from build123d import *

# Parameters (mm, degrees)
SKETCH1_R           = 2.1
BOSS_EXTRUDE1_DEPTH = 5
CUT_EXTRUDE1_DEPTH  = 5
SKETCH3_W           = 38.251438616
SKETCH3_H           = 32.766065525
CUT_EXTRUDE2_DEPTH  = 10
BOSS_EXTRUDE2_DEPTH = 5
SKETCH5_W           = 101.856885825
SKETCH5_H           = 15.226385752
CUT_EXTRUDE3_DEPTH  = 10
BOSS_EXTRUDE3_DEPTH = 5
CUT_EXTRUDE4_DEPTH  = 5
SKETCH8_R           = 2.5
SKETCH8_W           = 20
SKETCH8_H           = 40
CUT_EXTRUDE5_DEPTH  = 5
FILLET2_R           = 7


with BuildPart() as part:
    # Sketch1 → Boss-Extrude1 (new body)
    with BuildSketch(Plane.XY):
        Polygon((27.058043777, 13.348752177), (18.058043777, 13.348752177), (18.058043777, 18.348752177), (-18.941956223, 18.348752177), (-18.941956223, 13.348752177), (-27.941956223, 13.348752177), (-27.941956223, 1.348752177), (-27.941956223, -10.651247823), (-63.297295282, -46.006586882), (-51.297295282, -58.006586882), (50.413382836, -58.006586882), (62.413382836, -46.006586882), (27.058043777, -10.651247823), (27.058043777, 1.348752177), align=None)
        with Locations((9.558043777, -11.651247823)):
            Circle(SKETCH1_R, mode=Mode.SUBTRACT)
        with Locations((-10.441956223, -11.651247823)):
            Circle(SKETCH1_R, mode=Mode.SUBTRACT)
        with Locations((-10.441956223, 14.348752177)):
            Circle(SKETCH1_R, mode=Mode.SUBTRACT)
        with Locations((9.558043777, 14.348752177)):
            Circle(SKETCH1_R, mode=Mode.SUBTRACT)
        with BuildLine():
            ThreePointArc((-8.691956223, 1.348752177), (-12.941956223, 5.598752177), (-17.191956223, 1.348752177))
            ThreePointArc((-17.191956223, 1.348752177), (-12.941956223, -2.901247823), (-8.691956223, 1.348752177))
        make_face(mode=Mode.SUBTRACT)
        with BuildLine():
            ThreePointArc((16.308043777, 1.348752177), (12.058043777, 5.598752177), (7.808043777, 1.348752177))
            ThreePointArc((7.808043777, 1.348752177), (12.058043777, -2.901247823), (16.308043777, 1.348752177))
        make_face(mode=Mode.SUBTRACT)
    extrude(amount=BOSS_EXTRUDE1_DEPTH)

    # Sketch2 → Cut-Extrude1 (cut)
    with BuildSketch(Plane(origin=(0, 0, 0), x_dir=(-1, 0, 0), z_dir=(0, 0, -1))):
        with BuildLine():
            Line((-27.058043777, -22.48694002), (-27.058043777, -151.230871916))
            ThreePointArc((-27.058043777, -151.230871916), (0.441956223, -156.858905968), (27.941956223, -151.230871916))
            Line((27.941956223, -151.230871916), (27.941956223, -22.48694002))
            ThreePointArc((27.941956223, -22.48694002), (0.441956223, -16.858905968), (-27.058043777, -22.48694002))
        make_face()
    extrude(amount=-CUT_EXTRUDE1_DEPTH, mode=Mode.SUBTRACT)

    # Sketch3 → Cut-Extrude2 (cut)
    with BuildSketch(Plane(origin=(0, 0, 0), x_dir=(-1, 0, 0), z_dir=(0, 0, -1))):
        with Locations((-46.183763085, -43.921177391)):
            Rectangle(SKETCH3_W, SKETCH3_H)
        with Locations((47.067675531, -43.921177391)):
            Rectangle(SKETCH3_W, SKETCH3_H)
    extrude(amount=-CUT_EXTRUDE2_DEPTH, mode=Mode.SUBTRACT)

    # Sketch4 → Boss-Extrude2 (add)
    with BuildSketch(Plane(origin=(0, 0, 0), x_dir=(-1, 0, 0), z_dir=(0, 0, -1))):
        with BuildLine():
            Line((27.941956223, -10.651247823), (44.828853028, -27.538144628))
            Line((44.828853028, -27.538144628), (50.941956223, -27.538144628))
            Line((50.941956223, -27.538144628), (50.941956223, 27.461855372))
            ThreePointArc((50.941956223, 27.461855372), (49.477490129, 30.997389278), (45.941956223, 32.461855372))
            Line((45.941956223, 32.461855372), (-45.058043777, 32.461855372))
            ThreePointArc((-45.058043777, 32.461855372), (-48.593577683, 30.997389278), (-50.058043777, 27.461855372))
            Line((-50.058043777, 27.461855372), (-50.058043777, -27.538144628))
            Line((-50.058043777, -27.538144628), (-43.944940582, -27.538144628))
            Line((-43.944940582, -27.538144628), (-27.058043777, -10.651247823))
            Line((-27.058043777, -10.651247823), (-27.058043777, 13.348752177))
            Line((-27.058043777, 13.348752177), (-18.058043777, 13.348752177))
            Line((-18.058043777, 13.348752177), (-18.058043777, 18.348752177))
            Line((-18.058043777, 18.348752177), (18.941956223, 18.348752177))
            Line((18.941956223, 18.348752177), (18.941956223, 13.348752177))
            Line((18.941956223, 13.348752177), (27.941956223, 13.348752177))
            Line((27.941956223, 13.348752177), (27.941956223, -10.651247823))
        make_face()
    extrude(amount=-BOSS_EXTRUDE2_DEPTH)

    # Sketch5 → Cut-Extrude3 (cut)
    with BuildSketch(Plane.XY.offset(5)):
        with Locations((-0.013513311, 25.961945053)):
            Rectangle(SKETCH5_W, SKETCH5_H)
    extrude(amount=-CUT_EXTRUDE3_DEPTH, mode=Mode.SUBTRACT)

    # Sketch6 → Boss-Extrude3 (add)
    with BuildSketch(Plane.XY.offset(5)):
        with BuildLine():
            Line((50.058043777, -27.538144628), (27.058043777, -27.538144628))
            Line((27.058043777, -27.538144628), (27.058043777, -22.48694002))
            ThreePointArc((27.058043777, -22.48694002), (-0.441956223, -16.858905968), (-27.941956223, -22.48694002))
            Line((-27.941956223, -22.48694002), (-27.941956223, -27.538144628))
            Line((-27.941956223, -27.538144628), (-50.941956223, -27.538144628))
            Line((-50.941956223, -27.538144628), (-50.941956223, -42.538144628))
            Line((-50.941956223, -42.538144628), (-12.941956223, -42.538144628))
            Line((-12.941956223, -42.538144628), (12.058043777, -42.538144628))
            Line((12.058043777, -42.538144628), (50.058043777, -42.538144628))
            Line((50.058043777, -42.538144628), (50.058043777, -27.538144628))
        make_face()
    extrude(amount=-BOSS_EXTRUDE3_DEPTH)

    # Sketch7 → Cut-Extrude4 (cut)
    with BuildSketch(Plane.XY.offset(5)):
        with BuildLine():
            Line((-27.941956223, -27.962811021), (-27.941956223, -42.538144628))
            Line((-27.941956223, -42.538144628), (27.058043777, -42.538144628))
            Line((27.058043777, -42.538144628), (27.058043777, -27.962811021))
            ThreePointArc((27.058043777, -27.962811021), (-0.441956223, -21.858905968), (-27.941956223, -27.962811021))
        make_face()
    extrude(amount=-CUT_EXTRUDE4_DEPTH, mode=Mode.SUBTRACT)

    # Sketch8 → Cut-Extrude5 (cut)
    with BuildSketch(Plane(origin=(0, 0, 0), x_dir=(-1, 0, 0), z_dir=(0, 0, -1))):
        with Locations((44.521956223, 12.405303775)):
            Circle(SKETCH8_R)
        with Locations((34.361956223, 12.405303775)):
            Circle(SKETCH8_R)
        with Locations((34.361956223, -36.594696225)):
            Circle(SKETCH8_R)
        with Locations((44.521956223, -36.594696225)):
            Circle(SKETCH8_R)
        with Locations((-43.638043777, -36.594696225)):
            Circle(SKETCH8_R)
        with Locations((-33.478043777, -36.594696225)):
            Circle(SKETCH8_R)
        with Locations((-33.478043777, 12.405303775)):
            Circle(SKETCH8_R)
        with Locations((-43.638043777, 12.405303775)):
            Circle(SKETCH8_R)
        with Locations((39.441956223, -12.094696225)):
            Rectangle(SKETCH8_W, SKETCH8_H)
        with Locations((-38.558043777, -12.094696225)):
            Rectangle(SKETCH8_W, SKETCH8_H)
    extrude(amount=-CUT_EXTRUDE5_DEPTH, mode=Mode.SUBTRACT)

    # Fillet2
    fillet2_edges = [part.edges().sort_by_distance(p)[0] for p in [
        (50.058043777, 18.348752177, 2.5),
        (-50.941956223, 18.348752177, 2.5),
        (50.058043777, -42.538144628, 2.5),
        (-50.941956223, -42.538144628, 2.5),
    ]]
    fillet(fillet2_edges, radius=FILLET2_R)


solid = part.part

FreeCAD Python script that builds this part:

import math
import FreeCAD as App
import Part
import Sketcher


def edges_at(feature, points):
    """Names of the edges that pass closest to the given points."""
    edges = feature.Shape.Edges
    near = lambda p: min(range(len(edges)), key=lambda i: edges[i].distToShape(Part.Vertex(*p))[0])
    return sorted({f"Edge{near(p) + 1}" for p in points})


def add_polygon(sketch, points):
    """Adds a closed chain of lines whose ends are joined by coincident constraints."""
    first, n = sketch.GeometryCount, len(points)
    for a, b in zip(points, points[1:] + points[:1]):
        sketch.addGeometry(Part.LineSegment(App.Vector(*a, 0), App.Vector(*b, 0)), False)
    for i in range(n):
        sketch.addConstraint(Sketcher.Constraint("Coincident", first + i, 2, first + (i + 1) % n, 1))

doc = App.newDocument("Part")
params = doc.addObject("Spreadsheet::Sheet", "Params")
for row, (alias, value) in enumerate([
    ("sketch1_diameter", "4.2 mm"),
    ("sketch1_diameter2", "8.5 mm"),
    ("sketch1_width", "9 mm"),
    ("sketch1_width2", "37 mm"),
    ("sketch1_height", "5 mm"),
    ("pad1_length", "5 mm"),
    ("sketch2_radius", "70 mm"),
    ("pocket1_length", "5 mm"),
    ("pocket2_length", "10 mm"),
    ("sketch4_radius", "5 mm"),
    ("sketch4_width", "91 mm"),
    ("sketch4_width2", "9 mm"),
    ("sketch4_width3", "37 mm"),
    ("sketch4_height", "55 mm"),
    ("pad2_length", "5 mm"),
    ("pocket3_length", "10 mm"),
    ("sketch6_radius", "70 mm"),
    ("sketch6_width", "23 mm"),
    ("sketch6_width2", "101 mm"),
    ("sketch6_height", "15 mm"),
    ("pad3_length", "5 mm"),
    ("sketch7_radius", "65 mm"),
    ("sketch7_width", "55 mm"),
    ("pocket4_length", "5 mm"),
    ("sketch8_diameter", "5 mm"),
    ("sketch8_width", "20 mm"),
    ("sketch8_height", "40 mm"),
    ("pocket5_length", "5 mm"),
    ("fillet_radius", "7 mm"),
], start=1):
    params.set(f"A{row}", alias)
    params.set(f"B{row}", "=" + value)
    params.setAlias(f"B{row}", alias)

body = doc.addObject("PartDesign::Body", "Body")

# Sketch on XY plane
sketch1 = body.newObject("Sketcher::SketchObject", "Sketch")
sketch1.AttachmentSupport = (doc.getObject("XY_Plane"), [""])
sketch1.MapMode = "FlatFace"
add_polygon(sketch1, [(27.058044, 13.348752), (18.058044, 13.348752), (18.058044, 18.348752), (-18.941956, 18.348752), (-18.941956, 13.348752), (-27.941956, 13.348752), (-27.941956, -10.651248), (-63.297295, -46.006587), (-51.297295, -58.006587), (50.413383, -58.006587), (62.413383, -46.006587), (27.058044, -10.651248)])  # lines 0-11
sketch1.addGeometry(Part.Circle(App.Vector(-10.441956, -11.651248, 0), App.Vector(0, 0, 1), 2.1), False)  # 12
sketch1.addGeometry(Part.Circle(App.Vector(-12.941956, 1.348752, 0), App.Vector(0, 0, 1), 4.25), False)  # 13
sketch1.addGeometry(Part.Circle(App.Vector(9.558044, -11.651248, 0), App.Vector(0, 0, 1), 2.1), False)  # 14
sketch1.addGeometry(Part.Circle(App.Vector(-10.441956, 14.348752, 0), App.Vector(0, 0, 1), 2.1), False)  # 15
sketch1.addGeometry(Part.Circle(App.Vector(12.058044, 1.348752, 0), App.Vector(0, 0, 1), 4.25), False)  # 16
sketch1.addGeometry(Part.Circle(App.Vector(9.558044, 14.348752, 0), App.Vector(0, 0, 1), 2.1), False)  # 17
sketch1.addConstraint(Sketcher.Constraint("Horizontal", 0))
sketch1.addConstraint(Sketcher.Constraint("Vertical", 1))
sketch1.addConstraint(Sketcher.Constraint("Horizontal", 2))
sketch1.addConstraint(Sketcher.Constraint("Vertical", 3))
sketch1.addConstraint(Sketcher.Constraint("Horizontal", 4))
sketch1.addConstraint(Sketcher.Constraint("Vertical", 5))
sketch1.addConstraint(Sketcher.Constraint("Horizontal", 8))
sketch1.addConstraint(Sketcher.Constraint("Vertical", 11))
sketch1.addConstraint(Sketcher.Constraint("Equal", 12, 14))
sketch1.addConstraint(Sketcher.Constraint("Equal", 14, 15))
sketch1.addConstraint(Sketcher.Constraint("Equal", 13, 16))
sketch1.addConstraint(Sketcher.Constraint("Equal", 15, 17))
sketch1.addConstraint(Sketcher.Constraint("Perpendicular", 6, 7))
sketch1.addConstraint(Sketcher.Constraint("Perpendicular", 7, 9))
sketch1.addConstraint(Sketcher.Constraint("Perpendicular", 9, 10))
sketch1.addConstraint(Sketcher.Constraint("Horizontal", 12, 3, 14, 3))
sketch1.addConstraint(Sketcher.Constraint("Horizontal", 13, 3, 16, 3))
sketch1.addConstraint(Sketcher.Constraint("Horizontal", 15, 3, 17, 3))
sketch1.addConstraint(Sketcher.Constraint("Horizontal", 0, 2, 3, 2))
sketch1.addConstraint(Sketcher.Constraint("Horizontal", 6, 2, 9, 2))
sketch1.addConstraint(Sketcher.Constraint("Horizontal", 5, 2, 10, 2))
sketch1.addConstraint(Sketcher.Constraint("Vertical", 12, 3, 15, 3))
sketch1.addConstraint(Sketcher.Constraint("Vertical", 14, 3, 17, 3))
sketch1.addConstraint(Sketcher.Constraint("Equal", 0, 4))
sketch1.addConstraint(Sketcher.Constraint("Equal", 7, 9))
sketch1.addConstraint(Sketcher.Constraint("Diameter", 12, 4.2))
sketch1.addConstraint(Sketcher.Constraint("Diameter", 13, 8.5))
sketch1.addConstraint(Sketcher.Constraint("DistanceX", 0, 2, 0, 1, 9.0))
sketch1.addConstraint(Sketcher.Constraint("DistanceX", 2, 2, 2, 1, 37.0))
sketch1.addConstraint(Sketcher.Constraint("DistanceY", 1, 1, 1, 2, 5.0))
sketch1.addConstraint(Sketcher.Constraint("DistanceY", 5, 2, 5, 1, 24.0))
sketch1.addConstraint(Sketcher.Constraint("Distance", 6, 50.0))
sketch1.addConstraint(Sketcher.Constraint("DistanceY", 12, 3, 13, 3, 13.0))
sketch1.addConstraint(Sketcher.Constraint("DistanceX", 12, 3, 14, 3, 20.0))
sketch1.addConstraint(Sketcher.Constraint("DistanceY", 13, 3, 15, 3, 13.0))
sketch1.addConstraint(Sketcher.Constraint("DistanceX", 13, 3, 16, 3, 25.0))
sketch1.addConstraint(Sketcher.Constraint("DistanceY", 0, 2, 17, 3, 1.0))
sketch1.addConstraint(Sketcher.Constraint("DistanceX", 16, 3, 0, 2, 6.0))
sketch1.addConstraint(Sketcher.Constraint("DistanceX", 6, 2, 7, 2, 12.0))
sketch1.addConstraint(Sketcher.Constraint("DistanceX", 13, 3, 12, 3, 2.5))
sketch1.addConstraint(Sketcher.Constraint("DistanceX", 12, 3, -1, 1, 10.441956))
sketch1.addConstraint(Sketcher.Constraint("DistanceY", 12, 3, -1, 1, 11.651248))
sketch1.setExpression("Constraints[37]", "Params.sketch1_diameter")
sketch1.setExpression("Constraints[38]", "Params.sketch1_diameter2")
sketch1.setExpression("Constraints[39]", "Params.sketch1_width")
sketch1.setExpression("Constraints[40]", "Params.sketch1_width2")
sketch1.setExpression("Constraints[41]", "Params.sketch1_height")
pad1 = body.newObject("PartDesign::Pad", "Pad")
pad1.Profile = sketch1
pad1.setExpression("Length", "Params.pad1_length")

# Sketch on XY plane
sketch2 = body.newObject("Sketcher::SketchObject", "Sketch001")
sketch2.AttachmentSupport = (doc.getObject("XY_Plane"), [""])
sketch2.MapMode = "FlatFace"
sketch2.addGeometry(Part.LineSegment(App.Vector(27.058044, -22.48694, 0), App.Vector(27.058044, -151.230872, 0)), False)
sketch2.addGeometry(Part.ArcOfCircle(Part.Circle(App.Vector(-0.441956, -86.858906, 0), App.Vector(0, 0, 1), 70), math.radians(-113.132396), math.radians(-66.867604)), False)
sketch2.addGeometry(Part.LineSegment(App.Vector(-27.941956, -151.230872, 0), App.Vector(-27.941956, -22.48694, 0)), False)
sketch2.addGeometry(Part.ArcOfCircle(Part.Circle(App.Vector(-0.441956, -86.858906, 0), App.Vector(0, 0, 1), 70), math.radians(66.867604), math.radians(113.132396)), False)
sketch2.addConstraint(Sketcher.Constraint("Coincident", 0, 2, 1, 2))
sketch2.addConstraint(Sketcher.Constraint("Coincident", 1, 1, 2, 1))
sketch2.addConstraint(Sketcher.Constraint("Coincident", 2, 2, 3, 2))
sketch2.addConstraint(Sketcher.Constraint("Coincident", 3, 1, 0, 1))
sketch2.addConstraint(Sketcher.Constraint("Vertical", 0))
sketch2.addConstraint(Sketcher.Constraint("Vertical", 2))
sketch2.addConstraint(Sketcher.Constraint("Coincident", 3, 3, 1, 3))
sketch2.addConstraint(Sketcher.Constraint("Equal", 1, 3))
sketch2.addConstraint(Sketcher.Constraint("Horizontal", 0, 2, 1, 1))
sketch2.addConstraint(Sketcher.Constraint("Radius", 1, 70.0))
sketch2.addConstraint(Sketcher.Constraint("DistanceX", 1, 1, 0, 2, 55.0))
sketch2.addConstraint(Sketcher.Constraint("DistanceY", 0, 2, -1, 1, 151.230872))
sketch2.addConstraint(Sketcher.Constraint("DistanceX", 1, 3, -1, 1, 0.441956))
sketch2.setExpression("Constraints[9]", "Params.sketch2_radius")
pocket1 = body.newObject("PartDesign::Pocket", "Pocket")
pocket1.Profile = sketch2
pocket1.setExpression("Length", "Params.pocket1_length")
pocket1.Reversed = True

# Sketch on XY plane
sketch3 = body.newObject("Sketcher::SketchObject", "Sketch002")
sketch3.AttachmentSupport = (doc.getObject("XY_Plane"), [""])
sketch3.MapMode = "FlatFace"
add_polygon(sketch3, [(65.309482, -27.538145), (65.309482, -60.30421), (27.058044, -60.30421), (27.058044, -27.538145)])  # lines 0-3
add_polygon(sketch3, [(-27.941956, -27.538145), (-27.941956, -60.30421), (-66.193395, -60.30421), (-66.193395, -27.538145)])  # lines 4-7
sketch3.addConstraint(Sketcher.Constraint("Vertical", 0))
sketch3.addConstraint(Sketcher.Constraint("Horizontal", 1))
sketch3.addConstraint(Sketcher.Constraint("Vertical", 2))
sketch3.addConstraint(Sketcher.Constraint("Horizontal", 3))
sketch3.addConstraint(Sketcher.Constraint("Vertical", 4))
sketch3.addConstraint(Sketcher.Constraint("Horizontal", 5))
sketch3.addConstraint(Sketcher.Constraint("Vertical", 6))
sketch3.addConstraint(Sketcher.Constraint("Horizontal", 7))
sketch3.addConstraint(Sketcher.Constraint("Horizontal", 1, 2, 4, 2))
sketch3.addConstraint(Sketcher.Constraint("Horizontal", 3, 2, 6, 2))
sketch3.addConstraint(Sketcher.Constraint("Equal", 3, 5))
sketch3.addConstraint(Sketcher.Constraint("DistanceX", 4, 2, 1, 2, 55.0))
sketch3.addConstraint(Sketcher.Constraint("DistanceX", 1, 2, 1, 1, 38.251439))
sketch3.addConstraint(Sketcher.Constraint("DistanceY", 0, 2, 0, 1, 32.766066))
sketch3.addConstraint(Sketcher.Constraint("DistanceY", 0, 2, -1, 1, 60.30421))
sketch3.addConstraint(Sketcher.Constraint("DistanceX", -1, 1, 0, 2, 65.309482))
pocket2 = body.newObject("PartDesign::Pocket", "Pocket001")
pocket2.Profile = sketch3
pocket2.setExpression("Length", "Params.pocket2_length")
pocket2.Reversed = True

# Sketch on XY plane
sketch4 = body.newObject("Sketcher::SketchObject", "Sketch003")
sketch4.AttachmentSupport = (doc.getObject("XY_Plane"), [""])
sketch4.MapMode = "FlatFace"
sketch4.addGeometry(Part.LineSegment(App.Vector(-27.941956, -10.651248, 0), App.Vector(-44.828853, -27.538145, 0)), False)
sketch4.addGeometry(Part.LineSegment(App.Vector(-44.828853, -27.538145, 0), App.Vector(-50.941956, -27.538145, 0)), False)
sketch4.addGeometry(Part.LineSegment(App.Vector(-50.941956, -27.538145, 0), App.Vector(-50.941956, 27.461855, 0)), False)
sketch4.addGeometry(Part.ArcOfCircle(Part.Circle(App.Vector(-45.941956, 27.461855, 0), App.Vector(0, 0, 1), 5), math.radians(90), math.radians(180)), False)
sketch4.addGeometry(Part.LineSegment(App.Vector(-45.941956, 32.461855, 0), App.Vector(45.058044, 32.461855, 0)), False)
sketch4.addGeometry(Part.ArcOfCircle(Part.Circle(App.Vector(45.058044, 27.461855, 0), App.Vector(0, 0, 1), 5), math.radians(0), math.radians(90)), False)
sketch4.addGeometry(Part.LineSegment(App.Vector(50.058044, 27.461855, 0), App.Vector(50.058044, -27.538145, 0)), False)
sketch4.addGeometry(Part.LineSegment(App.Vector(50.058044, -27.538145, 0), App.Vector(43.944941, -27.538145, 0)), False)
sketch4.addGeometry(Part.LineSegment(App.Vector(43.944941, -27.538145, 0), App.Vector(27.058044, -10.651248, 0)), False)
sketch4.addGeometry(Part.LineSegment(App.Vector(27.058044, -10.651248, 0), App.Vector(27.058044, 13.348752, 0)), False)
sketch4.addGeometry(Part.LineSegment(App.Vector(27.058044, 13.348752, 0), App.Vector(18.058044, 13.348752, 0)), False)
sketch4.addGeometry(Part.LineSegment(App.Vector(18.058044, 13.348752, 0), App.Vector(18.058044, 18.348752, 0)), False)
sketch4.addGeometry(Part.LineSegment(App.Vector(18.058044, 18.348752, 0), App.Vector(-18.941956, 18.348752, 0)), False)
sketch4.addGeometry(Part.LineSegment(App.Vector(-18.941956, 18.348752, 0), App.Vector(-18.941956, 13.348752, 0)), False)
sketch4.addGeometry(Part.LineSegment(App.Vector(-18.941956, 13.348752, 0), App.Vector(-27.941956, 13.348752, 0)), False)
sketch4.addGeometry(Part.LineSegment(App.Vector(-27.941956, 13.348752, 0), App.Vector(-27.941956, -10.651248, 0)), False)
sketch4.addConstraint(Sketcher.Constraint("Coincident", 0, 2, 1, 1))
sketch4.addConstraint(Sketcher.Constraint("Coincident", 1, 2, 2, 1))
sketch4.addConstraint(Sketcher.Constraint("Tangent", 2, 2, 3, 2))
sketch4.addConstraint(Sketcher.Constraint("Tangent", 3, 1, 4, 1))
sketch4.addConstraint(Sketcher.Constraint("Tangent", 4, 2, 5, 2))
sketch4.addConstraint(Sketcher.Constraint("Tangent", 5, 1, 6, 1))
sketch4.addConstraint(Sketcher.Constraint("Coincident", 6, 2, 7, 1))
sketch4.addConstraint(Sketcher.Constraint("Coincident", 7, 2, 8, 1))
sketch4.addConstraint(Sketcher.Constraint("Coincident", 8, 2, 9, 1))
sketch4.addConstraint(Sketcher.Constraint("Coincident", 9, 2, 10, 1))
sketch4.addConstraint(Sketcher.Constraint("Coincident", 10, 2, 11, 1))
sketch4.addConstraint(Sketcher.Constraint("Coincident", 11, 2, 12, 1))
sketch4.addConstraint(Sketcher.Constraint("Coincident", 12, 2, 13, 1))
sketch4.addConstraint(Sketcher.Constraint("Coincident", 13, 2, 14, 1))
sketch4.addConstraint(Sketcher.Constraint("Coincident", 14, 2, 15, 1))
sketch4.addConstraint(Sketcher.Constraint("Coincident", 15, 2, 0, 1))
sketch4.addConstraint(Sketcher.Constraint("Horizontal", 1))
sketch4.addConstraint(Sketcher.Constraint("Vertical", 2))
sketch4.addConstraint(Sketcher.Constraint("Horizontal", 4))
sketch4.addConstraint(Sketcher.Constraint("Vertical", 6))
sketch4.addConstraint(Sketcher.Constraint("Horizontal", 7))
sketch4.addConstraint(Sketcher.Constraint("Vertical", 9))
sketch4.addConstraint(Sketcher.Constraint("Horizontal", 10))
sketch4.addConstraint(Sketcher.Constraint("Vertical", 11))
sketch4.addConstraint(Sketcher.Constraint("Horizontal", 12))
sketch4.addConstraint(Sketcher.Constraint("Vertical", 13))
sketch4.addConstraint(Sketcher.Constraint("Horizontal", 14))
sketch4.addConstraint(Sketcher.Constraint("Vertical", 15))
sketch4.addConstraint(Sketcher.Constraint("Equal", 3, 5))
sketch4.addConstraint(Sketcher.Constraint("Perpendicular", 0, 8))
sketch4.addConstraint(Sketcher.Constraint("Horizontal", 1, 2, 6, 2))
sketch4.addConstraint(Sketcher.Constraint("Horizontal", 10, 2, 13, 2))
sketch4.addConstraint(Sketcher.Constraint("Horizontal", 8, 2, 15, 2))
sketch4.addConstraint(Sketcher.Constraint("Equal", 1, 7))
sketch4.addConstraint(Sketcher.Constraint("Equal", 10, 14))
sketch4.addConstraint(Sketcher.Constraint("Equal", 0, 8))
sketch4.addConstraint(Sketcher.Constraint("Radius", 3, 5.0))
sketch4.addConstraint(Sketcher.Constraint("DistanceX", 4, 1, 4, 2, 91.0))
sketch4.addConstraint(Sketcher.Constraint("DistanceX", 10, 2, 10, 1, 9.0))
sketch4.addConstraint(Sketcher.Constraint("DistanceX", 12, 2, 12, 1, 37.0))
sketch4.addConstraint(Sketcher.Constraint("DistanceY", 2, 1, 2, 2, 55.0))
sketch4.addConstraint(Sketcher.Constraint("DistanceY", 9, 1, 9, 2, 24.0))
sketch4.addConstraint(Sketcher.Constraint("DistanceY", 11, 1, 11, 2, 5.0))
sketch4.addConstraint(Sketcher.Constraint("Distance", 0, 23.881678))
sketch4.addConstraint(Sketcher.Constraint("DistanceX", -1, 1, 7, 2, 43.944941))
sketch4.addConstraint(Sketcher.Constraint("DistanceY", -1, 1, 3, 3, 27.461855))
sketch4.setExpression("Constraints[36]", "Params.sketch4_radius")
sketch4.setExpression("Constraints[37]", "Params.sketch4_width")
sketch4.setExpression("Constraints[38]", "Params.sketch4_width2")
sketch4.setExpression("Constraints[39]", "Params.sketch4_width3")
sketch4.setExpression("Constraints[40]", "Params.sketch4_height")
pad2 = body.newObject("PartDesign::Pad", "Pad001")
pad2.Profile = sketch4
pad2.setExpression("Length", "Params.pad2_length")

# Sketch on XY plane
sketch5 = body.newObject("Sketcher::SketchObject", "Sketch004")
sketch5.AttachmentSupport = (doc.getObject("XY_Plane"), [""])
sketch5.MapMode = "FlatFace"
sketch5.AttachmentOffset = App.Placement(App.Vector(0, 0, 5), App.Rotation())
add_polygon(sketch5, [(-50.941956, 33.575138), (-50.941956, 18.348752), (50.91493, 18.348752), (50.91493, 33.575138)])  # lines 0-3
sketch5.addConstraint(Sketcher.Constraint("Vertical", 0))
sketch5.addConstraint(Sketcher.Constraint("Horizontal", 1))
sketch5.addConstraint(Sketcher.Constraint("Vertical", 2))
sketch5.addConstraint(Sketcher.Constraint("Horizontal", 3))
sketch5.addConstraint(Sketcher.Constraint("DistanceX", 1, 1, 1, 2, 101.856886))
sketch5.addConstraint(Sketcher.Constraint("DistanceY", 0, 2, 0, 1, 15.226386))
sketch5.addConstraint(Sketcher.Constraint("DistanceX", -1, 1, 1, 2, 50.91493))
sketch5.addConstraint(Sketcher.Constraint("DistanceY", -1, 1, 0, 2, 18.348752))
pocket3 = body.newObject("PartDesign::Pocket", "Pocket002")
pocket3.Profile = sketch5
pocket3.setExpression("Length", "Params.pocket3_length")

# Sketch on XY plane
sketch6 = body.newObject("Sketcher::SketchObject", "Sketch005")
sketch6.AttachmentSupport = (doc.getObject("XY_Plane"), [""])
sketch6.MapMode = "FlatFace"
sketch6.AttachmentOffset = App.Placement(App.Vector(0, 0, 5), App.Rotation())
sketch6.addGeometry(Part.LineSegment(App.Vector(50.058044, -27.538145, 0), App.Vector(27.058044, -27.538145, 0)), False)
sketch6.addGeometry(Part.LineSegment(App.Vector(27.058044, -27.538145, 0), App.Vector(27.058044, -22.48694, 0)), False)
sketch6.addGeometry(Part.ArcOfCircle(Part.Circle(App.Vector(-0.441956, -86.858906, 0), App.Vector(0, 0, 1), 70), math.radians(66.867604), math.radians(113.132396)), False)
sketch6.addGeometry(Part.LineSegment(App.Vector(-27.941956, -22.48694, 0), App.Vector(-27.941956, -27.538145, 0)), False)
sketch6.addGeometry(Part.LineSegment(App.Vector(-27.941956, -27.538145, 0), App.Vector(-50.941956, -27.538145, 0)), False)
sketch6.addGeometry(Part.LineSegment(App.Vector(-50.941956, -27.538145, 0), App.Vector(-50.941956, -42.538145, 0)), False)
sketch6.addGeometry(Part.LineSegment(App.Vector(-50.941956, -42.538145, 0), App.Vector(50.058044, -42.538145, 0)), False)
sketch6.addGeometry(Part.LineSegment(App.Vector(50.058044, -42.538145, 0), App.Vector(50.058044, -27.538145, 0)), False)
sketch6.addConstraint(Sketcher.Constraint("Coincident", 0, 2, 1, 1))
sketch6.addConstraint(Sketcher.Constraint("Coincident", 1, 2, 2, 1))
sketch6.addConstraint(Sketcher.Constraint("Coincident", 2, 2, 3, 1))
sketch6.addConstraint(Sketcher.Constraint("Coincident", 3, 2, 4, 1))
sketch6.addConstraint(Sketcher.Constraint("Coincident", 4, 2, 5, 1))
sketch6.addConstraint(Sketcher.Constraint("Coincident", 5, 2, 6, 1))
sketch6.addConstraint(Sketcher.Constraint("Coincident", 6, 2, 7, 1))
sketch6.addConstraint(Sketcher.Constraint("Coincident", 7, 2, 0, 1))
sketch6.addConstraint(Sketcher.Constraint("Horizontal", 0))
sketch6.addConstraint(Sketcher.Constraint("Vertical", 1))
sketch6.addConstraint(Sketcher.Constraint("Vertical", 3))
sketch6.addConstraint(Sketcher.Constraint("Horizontal", 4))
sketch6.addConstraint(Sketcher.Constraint("Vertical", 5))
sketch6.addConstraint(Sketcher.Constraint("Horizontal", 6))
sketch6.addConstraint(Sketcher.Constraint("Vertical", 7))
sketch6.addConstraint(Sketcher.Constraint("Horizontal", 1, 2, 2, 2))
sketch6.addConstraint(Sketcher.Constraint("Horizontal", 0, 2, 3, 2))
sketch6.addConstraint(Sketcher.Constraint("Equal", 0, 4))
sketch6.addConstraint(Sketcher.Constraint("Radius", 2, 70.0))
sketch6.addConstraint(Sketcher.Constraint("DistanceX", 0, 2, 0, 1, 23.0))
sketch6.addConstraint(Sketcher.Constraint("DistanceX", 6, 1, 6, 2, 101.0))
sketch6.addConstraint(Sketcher.Constraint("DistanceY", 5, 2, 5, 1, 15.0))
sketch6.addConstraint(Sketcher.Constraint("DistanceY", 1, 1, 1, 2, 5.051205))
sketch6.addConstraint(Sketcher.Constraint("DistanceY", 1, 2, -1, 1, 22.48694))
sketch6.addConstraint(Sketcher.Constraint("DistanceX", 2, 3, -1, 1, 0.441956))
sketch6.setExpression("Constraints[18]", "Params.sketch6_radius")
sketch6.setExpression("Constraints[19]", "Params.sketch6_width")
sketch6.setExpression("Constraints[20]", "Params.sketch6_width2")
sketch6.setExpression("Constraints[21]", "Params.sketch6_height")
pad3 = body.newObject("PartDesign::Pad", "Pad002")
pad3.Profile = sketch6
pad3.setExpression("Length", "Params.pad3_length")
pad3.Reversed = True

# Sketch on XY plane
sketch7 = body.newObject("Sketcher::SketchObject", "Sketch006")
sketch7.AttachmentSupport = (doc.getObject("XY_Plane"), [""])
sketch7.MapMode = "FlatFace"
sketch7.AttachmentOffset = App.Placement(App.Vector(0, 0, 5), App.Rotation())
sketch7.addGeometry(Part.LineSegment(App.Vector(-27.941956, -27.962811, 0), App.Vector(-27.941956, -42.538145, 0)), False)
sketch7.addGeometry(Part.LineSegment(App.Vector(-27.941956, -42.538145, 0), App.Vector(27.058044, -42.538145, 0)), False)
sketch7.addGeometry(Part.LineSegment(App.Vector(27.058044, -42.538145, 0), App.Vector(27.058044, -27.962811, 0)), False)
sketch7.addGeometry(Part.ArcOfCircle(Part.Circle(App.Vector(-0.441956, -86.858906, 0), App.Vector(0, 0, 1), 65), math.radians(64.971001), math.radians(115.028999)), False)
sketch7.addConstraint(Sketcher.Constraint("Coincident", 0, 2, 1, 1))
sketch7.addConstraint(Sketcher.Constraint("Coincident", 1, 2, 2, 1))
sketch7.addConstraint(Sketcher.Constraint("Coincident", 2, 2, 3, 1))
sketch7.addConstraint(Sketcher.Constraint("Coincident", 3, 2, 0, 1))
sketch7.addConstraint(Sketcher.Constraint("Vertical", 0))
sketch7.addConstraint(Sketcher.Constraint("Horizontal", 1))
sketch7.addConstraint(Sketcher.Constraint("Vertical", 2))
sketch7.addConstraint(Sketcher.Constraint("Horizontal", 2, 2, 3, 2))
sketch7.addConstraint(Sketcher.Constraint("Radius", 3, 65.0))
sketch7.addConstraint(Sketcher.Constraint("DistanceX", 1, 1, 1, 2, 55.0))
sketch7.addConstraint(Sketcher.Constraint("DistanceY", 0, 2, 0, 1, 14.575334))
sketch7.addConstraint(Sketcher.Constraint("DistanceY", 2, 2, -1, 1, 27.962811))
sketch7.addConstraint(Sketcher.Constraint("DistanceX", 3, 3, -1, 1, 0.441956))
sketch7.setExpression("Constraints[8]", "Params.sketch7_radius")
sketch7.setExpression("Constraints[9]", "Params.sketch7_width")
pocket4 = body.newObject("PartDesign::Pocket", "Pocket003")
pocket4.Profile = sketch7
pocket4.setExpression("Length", "Params.pocket4_length")

# Sketch on XY plane
sketch8 = body.newObject("Sketcher::SketchObject", "Sketch007")
sketch8.AttachmentSupport = (doc.getObject("XY_Plane"), [""])
sketch8.MapMode = "FlatFace"
sketch8.addGeometry(Part.Circle(App.Vector(-44.521956, 12.405304, 0), App.Vector(0, 0, 1), 2.5), False)  # 0
sketch8.addGeometry(Part.Circle(App.Vector(-34.361956, 12.405304, 0), App.Vector(0, 0, 1), 2.5), False)  # 1
sketch8.addGeometry(Part.Circle(App.Vector(-34.361956, -36.594696, 0), App.Vector(0, 0, 1), 2.5), False)  # 2
sketch8.addGeometry(Part.Circle(App.Vector(-44.521956, -36.594696, 0), App.Vector(0, 0, 1), 2.5), False)  # 3
sketch8.addGeometry(Part.Circle(App.Vector(43.638044, -36.594696, 0), App.Vector(0, 0, 1), 2.5), False)  # 4
sketch8.addGeometry(Part.Circle(App.Vector(33.478044, -36.594696, 0), App.Vector(0, 0, 1), 2.5), False)  # 5
sketch8.addGeometry(Part.Circle(App.Vector(33.478044, 12.405304, 0), App.Vector(0, 0, 1), 2.5), False)  # 6
sketch8.addGeometry(Part.Circle(App.Vector(43.638044, 12.405304, 0), App.Vector(0, 0, 1), 2.5), False)  # 7
add_polygon(sketch8, [(-29.441956, 7.905304), (-29.441956, -32.094696), (-49.441956, -32.094696), (-49.441956, 7.905304)])  # lines 8-11
add_polygon(sketch8, [(48.558044, 7.905304), (48.558044, -32.094696), (28.558044, -32.094696), (28.558044, 7.905304)])  # lines 12-15
sketch8.addConstraint(Sketcher.Constraint("Vertical", 8))
sketch8.addConstraint(Sketcher.Constraint("Horizontal", 9))
sketch8.addConstraint(Sketcher.Constraint("Vertical", 10))
sketch8.addConstraint(Sketcher.Constraint("Horizontal", 11))
sketch8.addConstraint(Sketcher.Constraint("Vertical", 12))
sketch8.addConstraint(Sketcher.Constraint("Horizontal", 13))
sketch8.addConstraint(Sketcher.Constraint("Vertical", 14))
sketch8.addConstraint(Sketcher.Constraint("Horizontal", 15))
sketch8.addConstraint(Sketcher.Constraint("Equal", 0, 1))
sketch8.addConstraint(Sketcher.Constraint("Equal", 1, 2))
sketch8.addConstraint(Sketcher.Constraint("Equal", 2, 3))
sketch8.addConstraint(Sketcher.Constraint("Equal", 3, 4))
sketch8.addConstraint(Sketcher.Constraint("Equal", 4, 5))
sketch8.addConstraint(Sketcher.Constraint("Equal", 5, 6))
sketch8.addConstraint(Sketcher.Constraint("Equal", 6, 7))
sketch8.addConstraint(Sketcher.Constraint("Horizontal", 0, 3, 1, 3))
sketch8.addConstraint(Sketcher.Constraint("Horizontal", 2, 3, 3, 3))
sketch8.addConstraint(Sketcher.Constraint("Horizontal", 3, 3, 4, 3))
sketch8.addConstraint(Sketcher.Constraint("Horizontal", 4, 3, 5, 3))
sketch8.addConstraint(Sketcher.Constraint("Horizontal", 1, 3, 6, 3))
sketch8.addConstraint(Sketcher.Constraint("Horizontal", 6, 3, 7, 3))
sketch8.addConstraint(Sketcher.Constraint("Horizontal", 9, 2, 12, 2))
sketch8.addConstraint(Sketcher.Constraint("Horizontal", 11, 2, 14, 2))
sketch8.addConstraint(Sketcher.Constraint("Vertical", 1, 3, 2, 3))
sketch8.addConstraint(Sketcher.Constraint("Vertical", 0, 3, 3, 3))
sketch8.addConstraint(Sketcher.Constraint("Vertical", 5, 3, 6, 3))
sketch8.addConstraint(Sketcher.Constraint("Vertical", 4, 3, 7, 3))
sketch8.addConstraint(Sketcher.Constraint("Equal", 11, 13))
sketch8.addConstraint(Sketcher.Constraint("Diameter", 0, 5.0))
sketch8.addConstraint(Sketcher.Constraint("DistanceX", 9, 2, 9, 1, 20.0))
sketch8.addConstraint(Sketcher.Constraint("DistanceY", 8, 2, 8, 1, 40.0))
sketch8.addConstraint(Sketcher.Constraint("DistanceY", 2, 3, 1, 3, 49.0))
sketch8.addConstraint(Sketcher.Constraint("DistanceX", 2, 3, 4, 3, 78.0))
sketch8.addConstraint(Sketcher.Constraint("DistanceX", 3, 3, 5, 3, 78.0))
sketch8.addConstraint(Sketcher.Constraint("DistanceX", 8, 2, 12, 2, 78.0))
sketch8.addConstraint(Sketcher.Constraint("DistanceY", 2, 3, 8, 2, 4.5))
sketch8.addConstraint(Sketcher.Constraint("DistanceX", 0, 3, 1, 3, 10.16))
sketch8.addConstraint(Sketcher.Constraint("DistanceX", 2, 3, 8, 2, 4.92))
sketch8.addConstraint(Sketcher.Constraint("DistanceX", 0, 3, -1, 1, 44.521956))
sketch8.addConstraint(Sketcher.Constraint("DistanceY", -1, 1, 0, 3, 12.405304))
sketch8.setExpression("Constraints[36]", "Params.sketch8_diameter")
sketch8.setExpression("Constraints[37]", "Params.sketch8_width")
sketch8.setExpression("Constraints[38]", "Params.sketch8_height")
pocket5 = body.newObject("PartDesign::Pocket", "Pocket004")
pocket5.Profile = sketch8
pocket5.setExpression("Length", "Params.pocket5_length")
pocket5.Reversed = True
doc.recompute()

fillet = body.newObject("PartDesign::Fillet", "Fillet")
fillet.Base = (pocket5, edges_at(pocket5, [
    (50.058, 18.349, 2.5),
    (-50.942, 18.349, 2.5),
    (50.058, -42.538, 2.5),
    (-50.942, -42.538, 2.5),
]))
fillet.setExpression("Radius", "Params.fillet_radius")

doc.recompute()
